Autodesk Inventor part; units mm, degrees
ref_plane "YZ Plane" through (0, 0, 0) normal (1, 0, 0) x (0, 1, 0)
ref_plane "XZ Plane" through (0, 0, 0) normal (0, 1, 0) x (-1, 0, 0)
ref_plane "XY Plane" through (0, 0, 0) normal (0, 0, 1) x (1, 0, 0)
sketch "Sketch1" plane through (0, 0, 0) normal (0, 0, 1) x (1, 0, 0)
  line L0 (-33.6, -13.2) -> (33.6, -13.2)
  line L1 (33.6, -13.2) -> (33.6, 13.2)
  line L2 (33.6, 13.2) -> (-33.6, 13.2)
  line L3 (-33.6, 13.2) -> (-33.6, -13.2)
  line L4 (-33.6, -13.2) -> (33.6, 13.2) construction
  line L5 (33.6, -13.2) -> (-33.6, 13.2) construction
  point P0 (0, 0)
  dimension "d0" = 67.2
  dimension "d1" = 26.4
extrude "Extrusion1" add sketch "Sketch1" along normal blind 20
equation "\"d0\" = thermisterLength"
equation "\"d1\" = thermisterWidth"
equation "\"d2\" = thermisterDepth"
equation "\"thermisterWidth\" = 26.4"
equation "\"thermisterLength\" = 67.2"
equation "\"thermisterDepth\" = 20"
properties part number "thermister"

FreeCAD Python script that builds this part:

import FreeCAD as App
import Part
import Sketcher
from FreeCAD import Vector
Q = App.Units.Quantity

doc = App.newDocument("Part")
body = doc.addObject("PartDesign::Body", "Body")

sketch1 = doc.addObject("Sketcher::SketchObject", "Sketch")
body.addObject(sketch1)
sketch1.AttachmentSupport = (doc.XY_Plane, [""])
sketch1.MapMode = "FlatFace"
sketch1.addGeometry(Part.LineSegment(Vector(-34, 13, 0), Vector(-34, -13, 0)), False)
sketch1.addGeometry(Part.LineSegment(Vector(-34, -13, 0), Vector(34, -13, 0)), False)
sketch1.addGeometry(Part.LineSegment(Vector(34, -13, 0), Vector(34, 13, 0)), False)
sketch1.addGeometry(Part.LineSegment(Vector(34, 13, 0), Vector(-34, 13, 0)), False)
sketch1.addConstraint(Sketcher.Constraint("Coincident", 0, 2, 1, 1))
sketch1.addConstraint(Sketcher.Constraint("Coincident", 1, 2, 2, 1))
sketch1.addConstraint(Sketcher.Constraint("Coincident", 2, 2, 3, 1))
sketch1.addConstraint(Sketcher.Constraint("Coincident", 3, 2, 0, 1))
sketch1.addConstraint(Sketcher.Constraint("Vertical", 0))
sketch1.addConstraint(Sketcher.Constraint("Horizontal", 1))
sketch1.addConstraint(Sketcher.Constraint("Vertical", 2))
sketch1.addConstraint(Sketcher.Constraint("Horizontal", 3))
sketch1.addConstraint(Sketcher.Constraint("Symmetric", 0, 2, 2, 2, -1, 1))
sketch1.addConstraint(Sketcher.Constraint("DistanceX", 1, 1, 1, 2, Q("67.2 mm")))
sketch1.addConstraint(Sketcher.Constraint("DistanceY", 0, 2, 0, 1, Q("26.4 mm")))
pad1 = doc.addObject("PartDesign::Pad", "Pad")
body.addObject(pad1)
pad1.Profile = sketch1
pad1.Length = 20

doc.recompute()
